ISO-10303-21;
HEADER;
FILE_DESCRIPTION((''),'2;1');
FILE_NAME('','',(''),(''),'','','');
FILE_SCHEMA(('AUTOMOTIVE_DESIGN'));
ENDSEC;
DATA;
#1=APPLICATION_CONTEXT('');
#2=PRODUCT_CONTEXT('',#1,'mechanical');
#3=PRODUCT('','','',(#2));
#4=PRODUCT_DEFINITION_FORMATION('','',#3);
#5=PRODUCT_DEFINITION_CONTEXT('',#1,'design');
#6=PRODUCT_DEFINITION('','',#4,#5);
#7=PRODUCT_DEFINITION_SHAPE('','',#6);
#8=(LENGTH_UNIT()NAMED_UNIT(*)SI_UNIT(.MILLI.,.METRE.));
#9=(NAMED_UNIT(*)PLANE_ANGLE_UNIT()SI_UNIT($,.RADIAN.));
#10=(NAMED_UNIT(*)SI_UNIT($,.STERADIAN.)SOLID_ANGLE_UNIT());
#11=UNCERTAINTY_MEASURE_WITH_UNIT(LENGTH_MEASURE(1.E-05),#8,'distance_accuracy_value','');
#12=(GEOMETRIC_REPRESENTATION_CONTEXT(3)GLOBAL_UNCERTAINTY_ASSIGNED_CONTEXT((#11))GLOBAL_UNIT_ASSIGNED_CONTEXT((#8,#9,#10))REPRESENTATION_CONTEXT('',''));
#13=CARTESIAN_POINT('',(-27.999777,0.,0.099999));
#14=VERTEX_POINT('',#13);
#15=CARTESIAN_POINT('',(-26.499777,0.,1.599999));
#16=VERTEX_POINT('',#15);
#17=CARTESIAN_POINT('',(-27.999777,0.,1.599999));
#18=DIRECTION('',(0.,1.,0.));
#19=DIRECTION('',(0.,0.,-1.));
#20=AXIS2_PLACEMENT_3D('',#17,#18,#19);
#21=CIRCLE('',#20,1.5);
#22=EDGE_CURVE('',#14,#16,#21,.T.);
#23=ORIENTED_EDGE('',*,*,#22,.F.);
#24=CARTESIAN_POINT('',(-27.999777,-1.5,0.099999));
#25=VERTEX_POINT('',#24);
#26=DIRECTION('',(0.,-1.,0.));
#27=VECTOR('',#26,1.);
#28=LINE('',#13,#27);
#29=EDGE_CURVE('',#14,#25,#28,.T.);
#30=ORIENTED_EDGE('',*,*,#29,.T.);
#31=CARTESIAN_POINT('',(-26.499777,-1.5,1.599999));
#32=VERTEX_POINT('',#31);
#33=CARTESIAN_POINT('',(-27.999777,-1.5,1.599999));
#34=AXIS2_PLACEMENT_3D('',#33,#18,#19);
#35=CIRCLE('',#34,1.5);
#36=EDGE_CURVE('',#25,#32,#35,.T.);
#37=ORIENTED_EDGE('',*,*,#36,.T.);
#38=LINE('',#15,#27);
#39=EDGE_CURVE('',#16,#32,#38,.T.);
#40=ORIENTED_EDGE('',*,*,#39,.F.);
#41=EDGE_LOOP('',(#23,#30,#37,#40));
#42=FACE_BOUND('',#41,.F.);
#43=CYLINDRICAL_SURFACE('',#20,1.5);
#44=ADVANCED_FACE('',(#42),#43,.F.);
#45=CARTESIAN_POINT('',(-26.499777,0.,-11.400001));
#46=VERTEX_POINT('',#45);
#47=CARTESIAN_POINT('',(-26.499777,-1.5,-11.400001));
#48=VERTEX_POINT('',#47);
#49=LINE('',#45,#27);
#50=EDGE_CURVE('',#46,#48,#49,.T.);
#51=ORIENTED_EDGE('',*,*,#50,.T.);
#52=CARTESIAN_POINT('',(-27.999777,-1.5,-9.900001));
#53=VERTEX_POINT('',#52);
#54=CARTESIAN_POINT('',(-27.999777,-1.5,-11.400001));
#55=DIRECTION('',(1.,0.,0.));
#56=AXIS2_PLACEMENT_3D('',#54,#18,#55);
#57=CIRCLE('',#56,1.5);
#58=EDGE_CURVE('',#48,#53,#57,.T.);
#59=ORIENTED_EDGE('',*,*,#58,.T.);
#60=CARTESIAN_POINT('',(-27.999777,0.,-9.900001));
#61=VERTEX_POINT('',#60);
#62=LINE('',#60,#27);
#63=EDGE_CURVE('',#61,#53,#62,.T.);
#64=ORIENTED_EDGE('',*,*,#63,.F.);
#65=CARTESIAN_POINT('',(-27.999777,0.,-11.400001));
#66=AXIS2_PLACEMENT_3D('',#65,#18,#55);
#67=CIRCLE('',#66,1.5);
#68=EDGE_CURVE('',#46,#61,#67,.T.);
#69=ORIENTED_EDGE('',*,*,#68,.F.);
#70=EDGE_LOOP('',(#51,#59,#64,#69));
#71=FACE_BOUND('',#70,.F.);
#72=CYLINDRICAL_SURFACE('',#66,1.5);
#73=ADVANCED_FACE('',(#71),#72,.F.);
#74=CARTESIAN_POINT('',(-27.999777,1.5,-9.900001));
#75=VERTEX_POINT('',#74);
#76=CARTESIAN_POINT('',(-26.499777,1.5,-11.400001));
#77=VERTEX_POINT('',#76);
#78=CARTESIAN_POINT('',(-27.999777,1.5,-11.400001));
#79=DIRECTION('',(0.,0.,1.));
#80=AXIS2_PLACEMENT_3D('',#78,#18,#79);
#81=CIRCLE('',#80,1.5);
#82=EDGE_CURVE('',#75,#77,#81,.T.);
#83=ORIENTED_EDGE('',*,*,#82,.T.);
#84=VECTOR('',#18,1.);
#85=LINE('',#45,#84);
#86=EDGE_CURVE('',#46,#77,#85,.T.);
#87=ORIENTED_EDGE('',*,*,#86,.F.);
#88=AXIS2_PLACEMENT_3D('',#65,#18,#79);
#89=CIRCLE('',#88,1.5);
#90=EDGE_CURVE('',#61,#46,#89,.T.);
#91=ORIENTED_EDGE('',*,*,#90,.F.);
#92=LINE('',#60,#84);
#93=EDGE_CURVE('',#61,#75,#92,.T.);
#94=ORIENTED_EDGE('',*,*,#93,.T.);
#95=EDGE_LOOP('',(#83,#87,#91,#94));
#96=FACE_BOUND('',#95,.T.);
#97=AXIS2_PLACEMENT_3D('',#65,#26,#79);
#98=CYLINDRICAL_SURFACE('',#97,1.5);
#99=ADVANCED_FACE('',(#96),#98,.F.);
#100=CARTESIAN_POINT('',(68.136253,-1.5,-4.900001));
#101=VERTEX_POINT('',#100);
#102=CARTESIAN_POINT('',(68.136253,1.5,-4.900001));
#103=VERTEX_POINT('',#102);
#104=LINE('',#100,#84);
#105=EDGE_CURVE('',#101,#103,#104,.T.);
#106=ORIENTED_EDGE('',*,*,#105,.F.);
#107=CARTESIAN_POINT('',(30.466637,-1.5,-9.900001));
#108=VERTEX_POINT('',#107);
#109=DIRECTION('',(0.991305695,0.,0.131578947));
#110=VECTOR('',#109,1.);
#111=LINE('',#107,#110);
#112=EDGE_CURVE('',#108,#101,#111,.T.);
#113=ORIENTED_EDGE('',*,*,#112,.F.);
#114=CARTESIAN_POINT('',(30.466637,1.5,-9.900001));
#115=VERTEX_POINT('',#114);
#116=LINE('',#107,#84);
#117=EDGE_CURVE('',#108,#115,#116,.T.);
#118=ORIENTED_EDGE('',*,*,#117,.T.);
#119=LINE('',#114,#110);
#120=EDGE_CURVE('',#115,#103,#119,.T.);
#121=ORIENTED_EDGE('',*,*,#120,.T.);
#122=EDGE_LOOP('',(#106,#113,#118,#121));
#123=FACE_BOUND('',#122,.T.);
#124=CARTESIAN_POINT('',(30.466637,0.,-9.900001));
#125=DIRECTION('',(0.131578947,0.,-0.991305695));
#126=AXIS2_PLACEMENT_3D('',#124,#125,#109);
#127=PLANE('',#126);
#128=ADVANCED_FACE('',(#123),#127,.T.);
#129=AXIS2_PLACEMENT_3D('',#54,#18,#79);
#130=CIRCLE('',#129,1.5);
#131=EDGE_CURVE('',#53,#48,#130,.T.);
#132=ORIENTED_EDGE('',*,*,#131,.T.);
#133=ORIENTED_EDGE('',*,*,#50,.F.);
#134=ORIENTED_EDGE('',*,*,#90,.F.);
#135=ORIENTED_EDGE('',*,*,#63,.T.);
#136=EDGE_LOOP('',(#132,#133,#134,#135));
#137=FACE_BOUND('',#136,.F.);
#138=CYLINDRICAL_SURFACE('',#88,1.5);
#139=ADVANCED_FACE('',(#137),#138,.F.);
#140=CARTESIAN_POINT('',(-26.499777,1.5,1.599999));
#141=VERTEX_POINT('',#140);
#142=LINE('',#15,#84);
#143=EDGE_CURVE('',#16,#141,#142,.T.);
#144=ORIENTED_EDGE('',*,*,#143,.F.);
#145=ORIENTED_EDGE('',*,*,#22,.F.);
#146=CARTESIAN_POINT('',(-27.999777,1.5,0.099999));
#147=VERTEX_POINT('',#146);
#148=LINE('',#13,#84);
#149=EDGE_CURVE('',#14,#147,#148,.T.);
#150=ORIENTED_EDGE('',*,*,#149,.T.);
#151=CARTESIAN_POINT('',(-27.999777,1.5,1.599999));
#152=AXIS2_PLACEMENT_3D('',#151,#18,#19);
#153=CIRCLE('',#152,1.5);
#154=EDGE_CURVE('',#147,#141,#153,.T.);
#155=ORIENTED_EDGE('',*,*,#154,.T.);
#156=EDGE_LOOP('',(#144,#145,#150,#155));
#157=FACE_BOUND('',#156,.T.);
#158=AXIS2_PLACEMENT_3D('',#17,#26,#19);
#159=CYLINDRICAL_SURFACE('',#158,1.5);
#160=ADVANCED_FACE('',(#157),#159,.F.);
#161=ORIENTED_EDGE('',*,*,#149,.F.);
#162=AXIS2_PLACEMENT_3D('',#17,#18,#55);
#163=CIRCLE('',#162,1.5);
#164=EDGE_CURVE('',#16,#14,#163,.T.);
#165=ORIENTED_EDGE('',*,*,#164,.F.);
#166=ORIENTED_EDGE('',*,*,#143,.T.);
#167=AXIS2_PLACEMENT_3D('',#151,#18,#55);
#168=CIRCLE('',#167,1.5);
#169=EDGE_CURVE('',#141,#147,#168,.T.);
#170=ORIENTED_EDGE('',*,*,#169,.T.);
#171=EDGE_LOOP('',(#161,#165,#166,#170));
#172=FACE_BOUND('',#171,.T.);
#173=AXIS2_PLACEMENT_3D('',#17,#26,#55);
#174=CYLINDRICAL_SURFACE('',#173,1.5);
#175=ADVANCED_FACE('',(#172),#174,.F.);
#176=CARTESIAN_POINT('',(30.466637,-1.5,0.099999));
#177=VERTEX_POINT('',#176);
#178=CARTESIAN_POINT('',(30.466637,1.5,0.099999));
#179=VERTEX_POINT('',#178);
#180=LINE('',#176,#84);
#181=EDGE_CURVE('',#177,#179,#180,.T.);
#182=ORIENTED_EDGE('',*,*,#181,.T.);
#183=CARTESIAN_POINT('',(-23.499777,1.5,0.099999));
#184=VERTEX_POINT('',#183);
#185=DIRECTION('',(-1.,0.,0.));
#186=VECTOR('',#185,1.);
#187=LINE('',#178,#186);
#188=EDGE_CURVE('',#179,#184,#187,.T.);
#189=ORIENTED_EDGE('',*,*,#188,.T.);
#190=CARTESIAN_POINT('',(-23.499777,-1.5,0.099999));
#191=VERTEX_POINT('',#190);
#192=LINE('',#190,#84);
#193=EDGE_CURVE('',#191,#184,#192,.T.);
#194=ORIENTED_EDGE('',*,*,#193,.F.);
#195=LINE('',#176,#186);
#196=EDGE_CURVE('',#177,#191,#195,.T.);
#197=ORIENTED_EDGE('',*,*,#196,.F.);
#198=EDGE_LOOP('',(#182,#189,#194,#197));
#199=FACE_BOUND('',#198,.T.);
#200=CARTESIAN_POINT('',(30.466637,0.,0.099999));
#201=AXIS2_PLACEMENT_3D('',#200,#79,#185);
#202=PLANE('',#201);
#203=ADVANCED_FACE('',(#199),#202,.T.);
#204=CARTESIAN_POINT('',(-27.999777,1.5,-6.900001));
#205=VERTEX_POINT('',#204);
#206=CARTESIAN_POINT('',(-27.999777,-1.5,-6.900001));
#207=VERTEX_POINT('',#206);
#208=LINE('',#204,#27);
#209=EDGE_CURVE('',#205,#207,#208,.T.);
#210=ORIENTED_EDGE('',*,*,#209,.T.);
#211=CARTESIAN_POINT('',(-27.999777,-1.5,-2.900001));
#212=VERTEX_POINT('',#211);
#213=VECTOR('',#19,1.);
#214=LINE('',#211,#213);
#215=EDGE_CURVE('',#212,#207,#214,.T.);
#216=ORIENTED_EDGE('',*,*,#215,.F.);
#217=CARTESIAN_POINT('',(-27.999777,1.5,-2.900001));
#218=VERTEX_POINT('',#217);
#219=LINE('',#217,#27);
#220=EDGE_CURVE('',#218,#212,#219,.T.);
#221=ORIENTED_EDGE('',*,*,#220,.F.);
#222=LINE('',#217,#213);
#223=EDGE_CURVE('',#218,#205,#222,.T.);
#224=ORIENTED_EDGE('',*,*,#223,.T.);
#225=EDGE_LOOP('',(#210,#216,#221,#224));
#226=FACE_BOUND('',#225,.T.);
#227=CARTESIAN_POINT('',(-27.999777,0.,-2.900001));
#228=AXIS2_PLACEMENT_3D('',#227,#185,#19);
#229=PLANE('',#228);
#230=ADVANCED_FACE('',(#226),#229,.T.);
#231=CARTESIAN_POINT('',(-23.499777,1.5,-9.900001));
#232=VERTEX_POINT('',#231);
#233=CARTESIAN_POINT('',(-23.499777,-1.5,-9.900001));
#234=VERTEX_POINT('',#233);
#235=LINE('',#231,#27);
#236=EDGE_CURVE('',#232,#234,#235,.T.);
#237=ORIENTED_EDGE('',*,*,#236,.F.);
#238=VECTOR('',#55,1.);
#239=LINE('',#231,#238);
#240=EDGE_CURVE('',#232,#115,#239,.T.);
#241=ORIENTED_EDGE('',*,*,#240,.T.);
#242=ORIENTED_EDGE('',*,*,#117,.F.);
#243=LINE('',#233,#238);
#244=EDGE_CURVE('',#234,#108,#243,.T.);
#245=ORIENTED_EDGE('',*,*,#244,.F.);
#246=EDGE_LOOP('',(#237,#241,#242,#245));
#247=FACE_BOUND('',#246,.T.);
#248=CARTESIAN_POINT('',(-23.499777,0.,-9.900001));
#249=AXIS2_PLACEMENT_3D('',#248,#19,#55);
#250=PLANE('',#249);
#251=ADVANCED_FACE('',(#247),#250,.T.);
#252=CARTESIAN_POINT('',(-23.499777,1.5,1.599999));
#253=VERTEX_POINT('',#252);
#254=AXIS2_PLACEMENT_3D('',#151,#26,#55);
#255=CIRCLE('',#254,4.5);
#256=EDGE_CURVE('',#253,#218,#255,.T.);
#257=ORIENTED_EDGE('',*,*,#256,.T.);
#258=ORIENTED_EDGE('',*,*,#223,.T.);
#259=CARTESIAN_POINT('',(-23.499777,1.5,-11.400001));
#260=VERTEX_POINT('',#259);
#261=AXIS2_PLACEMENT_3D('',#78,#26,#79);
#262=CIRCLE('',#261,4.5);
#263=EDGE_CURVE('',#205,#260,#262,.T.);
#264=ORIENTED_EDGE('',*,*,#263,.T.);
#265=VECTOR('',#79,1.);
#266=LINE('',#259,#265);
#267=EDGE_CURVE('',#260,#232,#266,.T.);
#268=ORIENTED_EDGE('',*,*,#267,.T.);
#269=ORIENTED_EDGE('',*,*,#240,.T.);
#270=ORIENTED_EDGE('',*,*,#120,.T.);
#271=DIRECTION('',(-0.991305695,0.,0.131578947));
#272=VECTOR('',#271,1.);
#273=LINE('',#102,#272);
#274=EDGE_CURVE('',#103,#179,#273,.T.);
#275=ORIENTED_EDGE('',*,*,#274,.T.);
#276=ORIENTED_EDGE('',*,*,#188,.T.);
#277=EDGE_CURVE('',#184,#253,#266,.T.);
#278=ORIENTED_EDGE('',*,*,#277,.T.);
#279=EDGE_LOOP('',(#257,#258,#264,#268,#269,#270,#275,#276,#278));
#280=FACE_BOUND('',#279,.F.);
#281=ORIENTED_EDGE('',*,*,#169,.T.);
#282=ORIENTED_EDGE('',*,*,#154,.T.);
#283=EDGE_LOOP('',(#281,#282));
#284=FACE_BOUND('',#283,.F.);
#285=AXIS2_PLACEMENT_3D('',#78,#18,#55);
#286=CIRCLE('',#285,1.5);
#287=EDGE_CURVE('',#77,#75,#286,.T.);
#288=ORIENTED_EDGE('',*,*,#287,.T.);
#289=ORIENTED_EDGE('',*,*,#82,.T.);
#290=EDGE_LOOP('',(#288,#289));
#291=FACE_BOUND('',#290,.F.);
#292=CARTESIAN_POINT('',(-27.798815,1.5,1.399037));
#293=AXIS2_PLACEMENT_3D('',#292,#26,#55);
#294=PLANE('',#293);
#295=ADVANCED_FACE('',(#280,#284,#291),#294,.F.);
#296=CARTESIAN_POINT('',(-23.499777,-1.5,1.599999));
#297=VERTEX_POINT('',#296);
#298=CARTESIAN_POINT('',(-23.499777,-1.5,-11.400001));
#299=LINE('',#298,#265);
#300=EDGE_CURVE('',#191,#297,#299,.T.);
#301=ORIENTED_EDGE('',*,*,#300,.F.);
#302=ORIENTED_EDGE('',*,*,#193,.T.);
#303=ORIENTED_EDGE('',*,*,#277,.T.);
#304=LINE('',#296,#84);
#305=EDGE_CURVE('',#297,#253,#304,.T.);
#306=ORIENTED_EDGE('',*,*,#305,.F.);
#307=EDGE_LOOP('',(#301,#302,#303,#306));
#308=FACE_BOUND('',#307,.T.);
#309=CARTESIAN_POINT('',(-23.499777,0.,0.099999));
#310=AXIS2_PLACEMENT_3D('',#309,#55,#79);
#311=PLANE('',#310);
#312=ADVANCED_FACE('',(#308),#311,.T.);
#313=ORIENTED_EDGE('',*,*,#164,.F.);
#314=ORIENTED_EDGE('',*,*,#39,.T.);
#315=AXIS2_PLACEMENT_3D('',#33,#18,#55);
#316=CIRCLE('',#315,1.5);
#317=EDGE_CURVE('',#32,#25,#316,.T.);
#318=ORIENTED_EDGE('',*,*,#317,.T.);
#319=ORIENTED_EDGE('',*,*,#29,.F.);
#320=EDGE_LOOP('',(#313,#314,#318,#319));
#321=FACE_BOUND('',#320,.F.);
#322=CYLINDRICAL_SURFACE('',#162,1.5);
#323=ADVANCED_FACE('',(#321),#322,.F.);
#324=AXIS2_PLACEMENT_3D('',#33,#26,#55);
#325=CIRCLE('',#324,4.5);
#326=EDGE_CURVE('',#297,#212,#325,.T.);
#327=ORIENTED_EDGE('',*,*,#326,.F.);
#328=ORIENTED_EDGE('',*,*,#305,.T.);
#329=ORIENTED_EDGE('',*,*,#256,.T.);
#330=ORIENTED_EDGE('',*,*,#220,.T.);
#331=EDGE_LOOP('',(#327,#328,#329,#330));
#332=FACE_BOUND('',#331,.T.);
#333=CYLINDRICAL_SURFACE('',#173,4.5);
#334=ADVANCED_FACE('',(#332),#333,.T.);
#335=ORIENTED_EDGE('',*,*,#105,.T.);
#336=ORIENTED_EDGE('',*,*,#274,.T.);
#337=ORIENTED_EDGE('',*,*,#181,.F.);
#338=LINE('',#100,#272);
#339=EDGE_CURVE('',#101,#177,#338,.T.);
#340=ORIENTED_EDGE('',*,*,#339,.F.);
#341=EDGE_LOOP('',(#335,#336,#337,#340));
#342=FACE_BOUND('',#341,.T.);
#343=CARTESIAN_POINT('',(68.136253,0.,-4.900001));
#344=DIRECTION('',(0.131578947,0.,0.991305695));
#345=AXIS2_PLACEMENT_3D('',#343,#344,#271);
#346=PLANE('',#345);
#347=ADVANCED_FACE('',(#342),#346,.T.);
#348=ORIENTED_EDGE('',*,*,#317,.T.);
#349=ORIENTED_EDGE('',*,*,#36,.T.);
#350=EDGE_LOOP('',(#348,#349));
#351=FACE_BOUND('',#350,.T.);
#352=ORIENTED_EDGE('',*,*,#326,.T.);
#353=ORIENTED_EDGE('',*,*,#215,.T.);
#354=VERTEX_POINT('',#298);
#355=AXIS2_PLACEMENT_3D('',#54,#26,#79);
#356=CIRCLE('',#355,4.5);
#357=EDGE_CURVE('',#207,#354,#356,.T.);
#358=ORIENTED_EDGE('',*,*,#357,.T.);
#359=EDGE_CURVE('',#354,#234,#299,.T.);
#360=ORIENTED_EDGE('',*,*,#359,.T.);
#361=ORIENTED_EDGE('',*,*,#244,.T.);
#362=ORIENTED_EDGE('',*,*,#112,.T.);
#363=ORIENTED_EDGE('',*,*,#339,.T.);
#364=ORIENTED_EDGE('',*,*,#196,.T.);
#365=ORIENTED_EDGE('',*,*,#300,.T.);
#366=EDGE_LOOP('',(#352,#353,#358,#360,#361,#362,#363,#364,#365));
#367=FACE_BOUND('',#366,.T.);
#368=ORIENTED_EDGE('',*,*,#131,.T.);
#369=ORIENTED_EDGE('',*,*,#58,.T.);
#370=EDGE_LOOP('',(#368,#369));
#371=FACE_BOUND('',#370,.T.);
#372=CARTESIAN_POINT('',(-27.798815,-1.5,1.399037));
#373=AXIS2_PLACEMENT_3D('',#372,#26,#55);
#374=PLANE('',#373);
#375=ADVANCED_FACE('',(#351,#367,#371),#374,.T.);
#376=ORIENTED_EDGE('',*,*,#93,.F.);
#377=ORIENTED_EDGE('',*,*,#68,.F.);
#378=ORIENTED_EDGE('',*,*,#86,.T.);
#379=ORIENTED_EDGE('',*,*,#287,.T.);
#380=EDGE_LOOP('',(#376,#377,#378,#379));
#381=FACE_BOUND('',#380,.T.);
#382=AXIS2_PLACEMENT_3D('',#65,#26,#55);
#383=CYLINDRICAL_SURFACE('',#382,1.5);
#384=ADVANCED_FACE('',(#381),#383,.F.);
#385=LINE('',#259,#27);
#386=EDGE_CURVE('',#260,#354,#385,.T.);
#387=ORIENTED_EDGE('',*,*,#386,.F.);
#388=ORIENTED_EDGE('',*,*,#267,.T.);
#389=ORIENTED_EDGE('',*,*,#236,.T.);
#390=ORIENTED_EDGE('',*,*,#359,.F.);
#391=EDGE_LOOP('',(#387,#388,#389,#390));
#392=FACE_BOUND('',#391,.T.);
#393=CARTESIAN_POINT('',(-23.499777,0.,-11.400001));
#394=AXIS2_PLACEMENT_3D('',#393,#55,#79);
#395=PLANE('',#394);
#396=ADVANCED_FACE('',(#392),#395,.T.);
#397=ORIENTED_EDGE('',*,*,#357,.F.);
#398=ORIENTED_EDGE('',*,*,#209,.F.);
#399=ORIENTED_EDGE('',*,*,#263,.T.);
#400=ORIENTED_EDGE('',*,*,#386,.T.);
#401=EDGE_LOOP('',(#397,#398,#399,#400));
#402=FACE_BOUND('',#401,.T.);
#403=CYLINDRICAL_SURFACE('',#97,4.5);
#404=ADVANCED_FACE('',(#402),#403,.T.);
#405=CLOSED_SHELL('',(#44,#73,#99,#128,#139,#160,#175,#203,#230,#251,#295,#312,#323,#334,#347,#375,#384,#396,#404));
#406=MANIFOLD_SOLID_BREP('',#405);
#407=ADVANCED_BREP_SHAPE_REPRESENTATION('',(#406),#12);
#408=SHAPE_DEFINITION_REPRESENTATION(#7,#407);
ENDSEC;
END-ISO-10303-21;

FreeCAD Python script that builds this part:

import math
import FreeCAD as App
import Part
import Sketcher
from FreeCAD import Vector
Q = App.Units.Quantity

doc = App.newDocument("Part")
body = doc.addObject("PartDesign::Body", "Body")

# Sketch on XZ plane
sketch1 = body.newObject("Sketcher::SketchObject", "Sketch")
sketch1.AttachmentSupport = (doc.getObject("XZ_Plane"), [""])
sketch1.MapMode = "FlatFace"
sketch1.addGeometry([
    Part.ArcOfCircle(Part.Circle(Vector(-28, 1.6, 0), Vector(0, 0, 1), 4.5), math.radians(0), math.radians(270)),  # 0
    Part.LineSegment(Vector(-28, -2.9, 0), Vector(-28, -6.9, 0)),  # 1
    Part.ArcOfCircle(Part.Circle(Vector(-28, -11.4, 0), Vector(0, 0, 1), 4.5), math.radians(90), math.radians(360)),  # 2
    Part.LineSegment(Vector(-23.5, -11.4, 0), Vector(-23.5, -9.9, 0)),  # 3
    Part.LineSegment(Vector(-23.5, -9.9, 0), Vector(30.5, -9.9, 0)),  # 4
    Part.LineSegment(Vector(30.5, -9.9, 0), Vector(68.1, -4.9, 0)),  # 5
    Part.LineSegment(Vector(68.1, -4.9, 0), Vector(30.5, 0.1, 0)),  # 6
    Part.LineSegment(Vector(30.5, 0.1, 0), Vector(-23.5, 0.1, 0)),  # 7
    Part.LineSegment(Vector(-23.5, 0.1, 0), Vector(-23.5, 1.6, 0)),  # 8
    Part.ArcOfCircle(Part.Circle(Vector(-28, -11.4, 0), Vector(0, 0, 1), 1.5), math.radians(0), math.radians(90)),  # 9
    Part.ArcOfCircle(Part.Circle(Vector(-28, -11.4, 0), Vector(0, 0, 1), 1.5), math.radians(90), math.radians(360)),  # 10
    Part.ArcOfCircle(Part.Circle(Vector(-28, 1.6, 0), Vector(0, 0, 1), 1.5), math.radians(-90), math.radians(0)),  # 11
    Part.ArcOfCircle(Part.Circle(Vector(-28, 1.6, 0), Vector(0, 0, 1), 1.5), math.radians(0), math.radians(270)),  # 12
], False)
sketch1.addConstraint([
    Sketcher.Constraint("Coincident", 0, 2, 1, 1),
    Sketcher.Constraint("Coincident", 1, 2, 2, 1),
    Sketcher.Constraint("Tangent", 2, 2, 3, 1),
    Sketcher.Constraint("Coincident", 3, 2, 4, 1),
    Sketcher.Constraint("Coincident", 4, 2, 5, 1),
    Sketcher.Constraint("Coincident", 5, 2, 6, 1),
    Sketcher.Constraint("Coincident", 6, 2, 7, 1),
    Sketcher.Constraint("Coincident", 7, 2, 8, 1),
    Sketcher.Constraint("Tangent", 8, 2, 0, 1),
    Sketcher.Constraint("Tangent", 9, 1, 10, 2),
    Sketcher.Constraint("Coincident", 10, 1, 9, 2),
    Sketcher.Constraint("Tangent", 11, 1, 12, 2),
    Sketcher.Constraint("Coincident", 12, 1, 11, 2),
    Sketcher.Constraint("Vertical", 1),
    Sketcher.Constraint("Vertical", 3),
    Sketcher.Constraint("Horizontal", 4),
    Sketcher.Constraint("Horizontal", 7),
    Sketcher.Constraint("Vertical", 8),
    Sketcher.Constraint("Coincident", 9, 3, 2, 3),
    Sketcher.Constraint("Coincident", 11, 3, 0, 3),
    Sketcher.Constraint("Equal", 0, 2),
    Sketcher.Constraint("Equal", 10, 11),
    Sketcher.Constraint("Horizontal", 2, 2, 9, 1),
    Sketcher.Constraint("Horizontal", 4, 2, 10, 1),
    Sketcher.Constraint("Horizontal", 7, 2, 11, 1),
    Sketcher.Constraint("Horizontal", 8, 2, 12, 1),
    Sketcher.Constraint("Vertical", 0, 3, 2, 3),
    Sketcher.Constraint("Vertical", 12, 3, 0, 2),
    Sketcher.Constraint("Vertical", 4, 2, 6, 2),
    Sketcher.Constraint("Vertical", 1, 2, 10, 1),
    Sketcher.Constraint("Vertical", 10, 1, 11, 1),
    Sketcher.Constraint("Equal", 5, 6),
    Sketcher.Constraint("Radius", 0, Q("4.5 mm")),
    Sketcher.Constraint("Radius", 9, Q("1.5 mm")),
    Sketcher.Constraint("DistanceY", 1, 2, 1, 1, Q("4 mm")),
    Sketcher.Constraint("Distance", 5, Q("38 mm")),
    Sketcher.Constraint("DistanceY", -1, 1, 0, 3, Q("1.599999 mm")),
    Sketcher.Constraint("DistanceX", 4, 1, 4, 2, Q("53.966414 mm")),
    Sketcher.Constraint("DistanceX", 0, 3, -1, 1, Q("27.999777 mm")),
])
pad1 = body.newObject("PartDesign::Pad", "Pad")
pad1.Profile = sketch1
pad1.Length = 3
pad1.Midplane = True

doc.recompute()
